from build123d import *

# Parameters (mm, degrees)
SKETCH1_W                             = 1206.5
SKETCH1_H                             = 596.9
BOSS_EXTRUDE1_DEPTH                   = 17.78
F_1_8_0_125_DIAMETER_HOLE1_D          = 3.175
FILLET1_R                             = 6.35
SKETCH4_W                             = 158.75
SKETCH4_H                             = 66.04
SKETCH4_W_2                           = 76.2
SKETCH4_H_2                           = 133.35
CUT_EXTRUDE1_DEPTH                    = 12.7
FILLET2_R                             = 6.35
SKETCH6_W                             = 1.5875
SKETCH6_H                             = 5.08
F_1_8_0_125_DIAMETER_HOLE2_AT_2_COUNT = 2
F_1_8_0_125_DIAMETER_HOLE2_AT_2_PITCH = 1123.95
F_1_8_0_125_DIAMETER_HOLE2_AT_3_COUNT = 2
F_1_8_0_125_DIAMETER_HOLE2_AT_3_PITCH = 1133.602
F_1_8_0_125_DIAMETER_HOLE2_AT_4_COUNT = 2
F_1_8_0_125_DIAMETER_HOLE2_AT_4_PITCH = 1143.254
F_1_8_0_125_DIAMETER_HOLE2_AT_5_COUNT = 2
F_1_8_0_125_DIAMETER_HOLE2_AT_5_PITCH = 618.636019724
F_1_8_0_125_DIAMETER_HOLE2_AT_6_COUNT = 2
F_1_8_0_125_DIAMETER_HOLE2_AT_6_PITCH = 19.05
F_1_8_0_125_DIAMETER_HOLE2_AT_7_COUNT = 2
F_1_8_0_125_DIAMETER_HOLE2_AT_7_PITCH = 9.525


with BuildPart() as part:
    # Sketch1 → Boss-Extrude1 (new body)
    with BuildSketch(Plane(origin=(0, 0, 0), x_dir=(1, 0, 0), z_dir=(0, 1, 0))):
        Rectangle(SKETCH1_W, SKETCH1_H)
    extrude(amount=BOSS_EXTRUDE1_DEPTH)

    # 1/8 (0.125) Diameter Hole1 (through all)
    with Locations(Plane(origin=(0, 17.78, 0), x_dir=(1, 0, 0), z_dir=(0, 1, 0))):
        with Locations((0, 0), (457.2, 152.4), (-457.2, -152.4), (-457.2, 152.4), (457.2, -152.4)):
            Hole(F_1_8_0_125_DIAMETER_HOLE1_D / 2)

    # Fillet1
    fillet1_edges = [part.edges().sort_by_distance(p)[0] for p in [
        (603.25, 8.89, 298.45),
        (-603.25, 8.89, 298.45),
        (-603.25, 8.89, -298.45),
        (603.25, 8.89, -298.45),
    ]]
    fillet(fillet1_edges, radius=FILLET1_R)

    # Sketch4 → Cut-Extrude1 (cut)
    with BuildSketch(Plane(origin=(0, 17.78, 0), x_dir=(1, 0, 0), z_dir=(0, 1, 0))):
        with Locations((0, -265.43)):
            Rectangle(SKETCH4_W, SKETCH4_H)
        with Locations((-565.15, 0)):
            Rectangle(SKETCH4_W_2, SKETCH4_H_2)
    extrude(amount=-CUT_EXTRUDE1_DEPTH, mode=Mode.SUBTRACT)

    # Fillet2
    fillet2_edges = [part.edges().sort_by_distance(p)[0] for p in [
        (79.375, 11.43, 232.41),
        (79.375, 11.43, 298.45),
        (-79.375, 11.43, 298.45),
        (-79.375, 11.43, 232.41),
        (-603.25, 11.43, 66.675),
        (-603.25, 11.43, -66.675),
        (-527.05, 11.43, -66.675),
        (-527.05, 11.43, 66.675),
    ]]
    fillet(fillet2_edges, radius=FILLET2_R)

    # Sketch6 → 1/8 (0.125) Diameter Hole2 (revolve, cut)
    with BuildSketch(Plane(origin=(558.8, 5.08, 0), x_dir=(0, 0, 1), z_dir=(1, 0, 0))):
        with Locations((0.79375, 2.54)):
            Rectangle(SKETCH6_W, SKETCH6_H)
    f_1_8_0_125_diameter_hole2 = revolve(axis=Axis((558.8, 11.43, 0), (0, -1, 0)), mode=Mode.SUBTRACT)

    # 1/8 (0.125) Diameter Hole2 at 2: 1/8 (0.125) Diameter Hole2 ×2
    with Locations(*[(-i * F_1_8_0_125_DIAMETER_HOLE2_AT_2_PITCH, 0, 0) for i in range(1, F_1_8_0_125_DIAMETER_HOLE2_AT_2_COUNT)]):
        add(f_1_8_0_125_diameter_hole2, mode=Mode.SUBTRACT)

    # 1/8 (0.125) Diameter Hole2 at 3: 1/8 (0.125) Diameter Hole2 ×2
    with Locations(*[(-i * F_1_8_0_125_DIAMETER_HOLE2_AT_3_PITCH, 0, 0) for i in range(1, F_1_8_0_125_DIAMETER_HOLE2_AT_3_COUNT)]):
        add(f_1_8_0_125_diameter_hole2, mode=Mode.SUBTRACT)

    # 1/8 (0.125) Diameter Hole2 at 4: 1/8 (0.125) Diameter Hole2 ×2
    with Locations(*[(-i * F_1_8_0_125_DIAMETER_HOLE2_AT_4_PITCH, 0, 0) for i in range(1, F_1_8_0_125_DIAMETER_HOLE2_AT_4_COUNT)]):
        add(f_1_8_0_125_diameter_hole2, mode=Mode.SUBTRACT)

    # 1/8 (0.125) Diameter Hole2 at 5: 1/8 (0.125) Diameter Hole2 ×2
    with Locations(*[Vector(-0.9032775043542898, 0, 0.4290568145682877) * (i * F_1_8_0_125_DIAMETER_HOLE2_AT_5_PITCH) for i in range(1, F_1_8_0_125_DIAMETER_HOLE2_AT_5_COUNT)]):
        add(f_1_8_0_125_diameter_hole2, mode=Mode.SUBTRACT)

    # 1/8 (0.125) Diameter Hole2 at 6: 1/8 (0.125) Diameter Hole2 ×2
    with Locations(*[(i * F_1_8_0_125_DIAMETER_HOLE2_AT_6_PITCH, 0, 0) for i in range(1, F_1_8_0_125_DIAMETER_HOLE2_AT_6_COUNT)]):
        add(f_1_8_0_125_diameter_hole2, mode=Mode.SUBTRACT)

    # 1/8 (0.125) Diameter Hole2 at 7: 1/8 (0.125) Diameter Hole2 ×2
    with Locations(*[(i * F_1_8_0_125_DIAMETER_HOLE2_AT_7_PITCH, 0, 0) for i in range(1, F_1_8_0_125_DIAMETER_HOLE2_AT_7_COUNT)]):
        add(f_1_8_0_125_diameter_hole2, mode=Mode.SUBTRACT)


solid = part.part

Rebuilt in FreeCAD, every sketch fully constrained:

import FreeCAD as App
import Part
import Sketcher

V = App.Vector
Q = App.Units.Quantity


def edges_at(feature, points):
    """Names of the edges that pass closest to the given points."""
    edges = feature.Shape.Edges
    near = lambda p: min(range(len(edges)), key=lambda i: edges[i].distToShape(Part.Vertex(*p))[0])
    return sorted({f"Edge{near(p) + 1}" for p in points})


def add_polygon(sketch, points):
    """Adds a closed chain of lines whose ends are joined by coincident constraints."""
    first, n = sketch.GeometryCount, len(points)
    for a, b in zip(points, points[1:] + points[:1]):
        sketch.addGeometry(Part.LineSegment(App.Vector(*a, 0), App.Vector(*b, 0)), False)
    for i in range(n):
        sketch.addConstraint(Sketcher.Constraint("Coincident", first + i, 2, first + (i + 1) % n, 1))

doc = App.newDocument("Part")
body = doc.addObject("PartDesign::Body", "Body")

# Sketch on XZ plane
sketch1 = body.newObject("Sketcher::SketchObject", "Sketch")
sketch1.AttachmentSupport = (doc.getObject("XZ_Plane"), [""])
sketch1.MapMode = "FlatFace"
add_polygon(sketch1, [(-603.25, -298.45), (-603.25, 298.45), (603.25, 298.45), (603.25, -298.45)])  # lines 0-3
sketch1.addConstraint([
    Sketcher.Constraint("Vertical", 0),
    Sketcher.Constraint("Horizontal", 1),
    Sketcher.Constraint("Vertical", 2),
    Sketcher.Constraint("Horizontal", 3),
    Sketcher.Constraint("Symmetric", 0, 2, 2, 2, -1, 1),
    Sketcher.Constraint("DistanceX", 1, 1, 1, 2, Q("47.5 in")),
    Sketcher.Constraint("DistanceY", 0, 1, 0, 2, Q("23.5 in")),
])
pad1 = body.newObject("PartDesign::Pad", "Pad")
pad1.Profile = sketch1
pad1.Length = Q("0.7 in")
pad1.Reversed = True

# Sketch on XZ plane
sketch2 = body.newObject("Sketcher::SketchObject", "Sketch001")
sketch2.AttachmentSupport = (doc.getObject("XZ_Plane"), [""])
sketch2.MapMode = "FlatFace"
sketch2.AttachmentOffset = App.Placement(V(0, 0, -0.7 * 25.4), App.Rotation())
sketch2.addGeometry([
    Part.Circle(V(0, 0, 0), V(0, 0, 1), 1.5875),  # 0
    Part.Circle(V(457.2, -152.4, 0), V(0, 0, 1), 1.5875),  # 1
    Part.Circle(V(-457.2, 152.4, 0), V(0, 0, 1), 1.5875),  # 2
    Part.Circle(V(-457.2, -152.4, 0), V(0, 0, 1), 1.5875),  # 3
    Part.Circle(V(457.2, 152.4, 0), V(0, 0, 1), 1.5875),  # 4
], False)
sketch2.addConstraint([
    Sketcher.Constraint("Coincident", 0, 3, -1, 1),
    Sketcher.Constraint("Equal", 0, 1),
    Sketcher.Constraint("Equal", 1, 2),
    Sketcher.Constraint("Equal", 2, 3),
    Sketcher.Constraint("Equal", 3, 4),
    Sketcher.Constraint("Symmetric", 1, 3, 2, 3, -1, 1),
    Sketcher.Constraint("Symmetric", 3, 3, 4, 3, -1, 1),
    Sketcher.Constraint("Symmetric", 1, 3, 3, 3, -2),
    Sketcher.Constraint("Diameter", 0, Q("0.125 in")),
    Sketcher.Constraint("DistanceX", -1, 1, 1, 3, Q("18 in")),
    Sketcher.Constraint("DistanceY", 1, 3, -1, 1, Q("6 in")),
])
doc.recompute()
hole = body.newObject("PartDesign::Hole", "Hole")
hole.Profile = sketch2
hole.ThreadType = "None"
hole.Diameter = Q("0.125 in")
hole.DepthType = "ThroughAll"
hole.Reversed = True
doc.recompute()

fillet = body.newObject("PartDesign::Fillet", "Fillet")
fillet.Base = (hole, edges_at(hole, [
    (603.25, 8.89, 298.45),
    (-603.25, 8.89, 298.45),
    (-603.25, 8.89, -298.45),
    (603.25, 8.89, -298.45),
]))
fillet.Radius = Q("0.25 in")

# Sketch on XZ plane
sketch3 = body.newObject("Sketcher::SketchObject", "Sketch002")
sketch3.AttachmentSupport = (doc.getObject("XZ_Plane"), [""])
sketch3.MapMode = "FlatFace"
sketch3.AttachmentOffset = App.Placement(V(0, 0, -0.7 * 25.4), App.Rotation())
add_polygon(sketch3, [(-79.375, 232.41), (-79.375, 298.45), (79.375, 298.45), (79.375, 232.41)])  # lines 0-3
add_polygon(sketch3, [(-603.25, -66.675), (-603.25, 66.675), (-527.05, 66.675), (-527.05, -66.675)])  # lines 4-7
sketch3.addConstraint([
    Sketcher.Constraint("Vertical", 0),
    Sketcher.Constraint("Horizontal", 1),
    Sketcher.Constraint("Vertical", 2),
    Sketcher.Constraint("Horizontal", 3),
    Sketcher.Constraint("Vertical", 4),
    Sketcher.Constraint("Horizontal", 5),
    Sketcher.Constraint("Vertical", 6),
    Sketcher.Constraint("Horizontal", 7),
    Sketcher.Constraint("DistanceX", 5, 1, 5, 2, Q("3 in")),
    Sketcher.Constraint("DistanceY", 0, 1, 0, 2, Q("2.6 in")),
    Sketcher.Constraint("DistanceX", 1, 1, 1, 2, Q("6.25 in")),
    Sketcher.Constraint("DistanceY", 4, 1, 4, 2, Q("5.25 in")),
    Sketcher.Constraint("DistanceY", -1, 1, 0, 2, Q("11.75 in")),
    Sketcher.Constraint("DistanceX", 4, 2, -1, 1, Q("23.75 in")),
    Sketcher.Constraint("DistanceX", 0, 2, -1, 1, Q("3.125 in")),
    Sketcher.Constraint("DistanceY", -1, 1, 4, 2, Q("2.625 in")),
])
pocket1 = body.newObject("PartDesign::Pocket", "Pocket")
pocket1.Profile = sketch3
pocket1.Length = Q("0.5 in")
pocket1.Reversed = True
doc.recompute()

fillet2 = body.newObject("PartDesign::Fillet", "Fillet001")
fillet2.Base = (pocket1, edges_at(pocket1, [
    (79.375, 11.43, 232.41),
    (79.375, 11.43, 298.45),
    (-79.375, 11.43, 298.45),
    (-79.375, 11.43, 232.41),
    (-603.25, 11.43, 66.675),
    (-603.25, 11.43, -66.675),
    (-527.05, 11.43, -66.675),
    (-527.05, 11.43, 66.675),
]))
fillet2.Radius = Q("0.25 in")

# Sketch on YZ plane
sketch4 = body.newObject("Sketcher::SketchObject", "Sketch003")
sketch4.AttachmentSupport = (doc.getObject("YZ_Plane"), [""])
sketch4.MapMode = "FlatFace"
sketch4.AttachmentOffset = App.Placement(V(0, 0, 22 * 25.4), App.Rotation())
add_polygon(sketch4, [(0, 0), (5.08, 0), (5.08, 1.5875), (0, 1.5875)])  # lines 0-3
sketch4.addConstraint([
    Sketcher.Constraint("Horizontal", 0),
    Sketcher.Constraint("Vertical", 1),
    Sketcher.Constraint("Horizontal", 2),
    Sketcher.Constraint("Vertical", 3),
    Sketcher.Constraint("Coincident", 3, 2, -1, 1),
    Sketcher.Constraint("DistanceX", 0, 1, 0, 2, Q("0.2 in")),
    Sketcher.Constraint("DistanceY", 1, 1, 1, 2, Q("0.0625 in")),
])
groove = body.newObject("PartDesign::Groove", "Groove")
groove.Profile = sketch4
groove.ReferenceAxis = (sketch4, ["H_Axis"])
groove.Angle = 360
doc.recompute()

linearpattern = body.newObject("PartDesign::LinearPattern", "LinearPattern")
linearpattern.Originals = [groove]
linearpattern.Direction = (doc.getObject("X_Axis"), [""])
linearpattern.Mode = "offset"
linearpattern.Offset = Q("44.25 in")
linearpattern.Occurrences = 2
linearpattern.Reversed = True
body.Tip = linearpattern
doc.recompute()

linearpattern2 = body.newObject("PartDesign::LinearPattern", "LinearPattern001")
linearpattern2.Originals = [groove]
linearpattern2.Direction = (doc.getObject("X_Axis"), [""])
linearpattern2.Mode = "offset"
linearpattern2.Offset = Q("44.63 in")
linearpattern2.Occurrences = 2
linearpattern2.Reversed = True
body.Tip = linearpattern2
doc.recompute()

linearpattern3 = body.newObject("PartDesign::LinearPattern", "LinearPattern002")
linearpattern3.Originals = [groove]
linearpattern3.Direction = (doc.getObject("X_Axis"), [""])
linearpattern3.Mode = "offset"
linearpattern3.Offset = Q("45.01 in")
linearpattern3.Occurrences = 2
linearpattern3.Reversed = True
body.Tip = linearpattern3
doc.recompute()

datumline = body.newObject("PartDesign::Line", "DatumLine")
datumline.Placement = App.Placement(V(0, 0, 0), App.Rotation(V(0, 0, 1), V(-0.903277504, 0, 0.429056815)))
linearpattern4 = body.newObject("PartDesign::LinearPattern", "LinearPattern003")
linearpattern4.Originals = [groove]
linearpattern4.Direction = (datumline, [""])
linearpattern4.Mode = "offset"
linearpattern4.Offset = 618.63602
linearpattern4.Occurrences = 2
body.Tip = linearpattern4
doc.recompute()

linearpattern5 = body.newObject("PartDesign::LinearPattern", "LinearPattern004")
linearpattern5.Originals = [groove]
linearpattern5.Direction = (doc.getObject("X_Axis"), [""])
linearpattern5.Mode = "offset"
linearpattern5.Offset = Q("0.75 in")
linearpattern5.Occurrences = 2
body.Tip = linearpattern5
doc.recompute()

linearpattern6 = body.newObject("PartDesign::LinearPattern", "LinearPattern005")
linearpattern6.Originals = [groove]
linearpattern6.Direction = (doc.getObject("X_Axis"), [""])
linearpattern6.Mode = "offset"
linearpattern6.Offset = Q("0.375 in")
linearpattern6.Occurrences = 2
body.Tip = linearpattern6

doc.recompute()
